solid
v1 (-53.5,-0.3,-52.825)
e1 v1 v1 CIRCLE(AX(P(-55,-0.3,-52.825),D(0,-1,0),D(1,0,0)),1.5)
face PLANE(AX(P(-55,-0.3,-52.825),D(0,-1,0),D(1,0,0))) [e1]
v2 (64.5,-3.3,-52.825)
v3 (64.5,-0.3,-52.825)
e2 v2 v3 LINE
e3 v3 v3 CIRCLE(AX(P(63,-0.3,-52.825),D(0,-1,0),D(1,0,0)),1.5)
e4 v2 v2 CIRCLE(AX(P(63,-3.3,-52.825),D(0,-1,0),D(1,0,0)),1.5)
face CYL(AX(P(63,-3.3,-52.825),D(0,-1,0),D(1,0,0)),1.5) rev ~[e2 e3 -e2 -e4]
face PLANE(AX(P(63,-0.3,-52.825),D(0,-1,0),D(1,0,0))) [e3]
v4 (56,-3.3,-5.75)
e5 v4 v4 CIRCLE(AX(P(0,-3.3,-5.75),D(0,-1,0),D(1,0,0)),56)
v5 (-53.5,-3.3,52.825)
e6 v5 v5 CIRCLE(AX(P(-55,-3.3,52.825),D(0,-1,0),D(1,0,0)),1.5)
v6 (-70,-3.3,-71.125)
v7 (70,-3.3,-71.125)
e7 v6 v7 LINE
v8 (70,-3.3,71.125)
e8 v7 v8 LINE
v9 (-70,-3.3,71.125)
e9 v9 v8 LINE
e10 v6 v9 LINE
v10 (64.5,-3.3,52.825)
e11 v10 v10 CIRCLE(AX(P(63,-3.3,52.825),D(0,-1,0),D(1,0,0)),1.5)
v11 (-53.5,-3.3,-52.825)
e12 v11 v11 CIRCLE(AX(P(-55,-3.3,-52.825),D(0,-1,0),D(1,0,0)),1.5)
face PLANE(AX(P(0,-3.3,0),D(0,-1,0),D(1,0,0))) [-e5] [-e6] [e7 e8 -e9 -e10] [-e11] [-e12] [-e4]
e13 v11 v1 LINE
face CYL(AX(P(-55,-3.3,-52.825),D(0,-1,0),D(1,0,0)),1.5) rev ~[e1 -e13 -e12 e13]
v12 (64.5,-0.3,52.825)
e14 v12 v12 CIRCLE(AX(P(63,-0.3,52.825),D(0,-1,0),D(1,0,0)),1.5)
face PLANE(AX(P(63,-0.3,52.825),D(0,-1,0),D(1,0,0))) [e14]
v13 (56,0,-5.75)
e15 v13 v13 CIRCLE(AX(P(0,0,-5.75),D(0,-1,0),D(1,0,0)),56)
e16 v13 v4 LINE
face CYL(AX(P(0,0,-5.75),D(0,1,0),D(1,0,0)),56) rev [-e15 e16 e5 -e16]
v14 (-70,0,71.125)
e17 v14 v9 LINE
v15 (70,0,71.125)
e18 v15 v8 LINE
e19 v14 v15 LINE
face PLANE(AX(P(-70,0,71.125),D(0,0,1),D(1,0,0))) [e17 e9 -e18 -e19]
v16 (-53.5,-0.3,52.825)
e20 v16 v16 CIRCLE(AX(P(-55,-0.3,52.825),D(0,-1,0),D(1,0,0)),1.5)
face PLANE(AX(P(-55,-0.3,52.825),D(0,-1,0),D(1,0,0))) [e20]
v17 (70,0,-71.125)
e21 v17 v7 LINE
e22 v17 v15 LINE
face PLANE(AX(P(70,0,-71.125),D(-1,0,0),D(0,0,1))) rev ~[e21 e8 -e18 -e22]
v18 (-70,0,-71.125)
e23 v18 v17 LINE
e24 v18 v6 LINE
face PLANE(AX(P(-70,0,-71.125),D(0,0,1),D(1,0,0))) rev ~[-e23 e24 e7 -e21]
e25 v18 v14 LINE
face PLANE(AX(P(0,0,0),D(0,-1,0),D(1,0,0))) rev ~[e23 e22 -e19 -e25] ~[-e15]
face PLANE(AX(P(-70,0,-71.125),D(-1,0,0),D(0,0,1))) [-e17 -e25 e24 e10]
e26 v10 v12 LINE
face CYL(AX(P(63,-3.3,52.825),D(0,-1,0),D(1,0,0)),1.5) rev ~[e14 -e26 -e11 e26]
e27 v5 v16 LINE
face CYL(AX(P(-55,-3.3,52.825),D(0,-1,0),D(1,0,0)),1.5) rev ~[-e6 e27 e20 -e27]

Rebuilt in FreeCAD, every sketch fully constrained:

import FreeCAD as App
import Part
import Sketcher

V = App.Vector
Q = App.Units.Quantity

doc = App.newDocument("Part")
body = doc.addObject("PartDesign::Body", "Body")

# Sketch on XZ plane
sketch1 = doc.addObject("Sketcher::SketchObject", "Sketch")
body.addObject(sketch1)
sketch1.AttachmentSupport = (doc.XZ_Plane, [""])
sketch1.MapMode = "FlatFace"
sketch1.addGeometry([
    Part.LineSegment(V(-70, 71, 0), V(-70, -71, 0)),  # 0
    Part.LineSegment(V(-70, -71, 0), V(70, -71, 0)),  # 1
    Part.LineSegment(V(70, -71, 0), V(70, 71, 0)),  # 2
    Part.LineSegment(V(70, 71, 0), V(-70, 71, 0)),  # 3
    Part.Circle(V(0, -6, 0), V(0, 0, 1), 56),  # 4
], False)
sketch1.addConstraint([
    Sketcher.Constraint("Coincident", 0, 2, 1, 1),
    Sketcher.Constraint("Coincident", 1, 2, 2, 1),
    Sketcher.Constraint("Coincident", 2, 2, 3, 1),
    Sketcher.Constraint("Coincident", 3, 2, 0, 1),
    Sketcher.Constraint("Vertical", 0),
    Sketcher.Constraint("Horizontal", 1),
    Sketcher.Constraint("Vertical", 2),
    Sketcher.Constraint("Horizontal", 3),
    Sketcher.Constraint("Symmetric", 0, 2, 2, 2, -1, 1),
    Sketcher.Constraint("PointOnObject", 4, 3, -2),
    Sketcher.Constraint("Diameter", 4, Q("112 mm")),
    Sketcher.Constraint("DistanceX", 1, 1, 1, 2, Q("140 mm")),
    Sketcher.Constraint("DistanceY", 0, 2, 0, 1, Q("142.25 mm")),
    Sketcher.Constraint("DistanceY", 4, 3, -1, 1, Q("5.75 mm")),
])
pad1 = doc.addObject("PartDesign::Pad", "Pad")
body.addObject(pad1)
pad1.Profile = sketch1
pad1.Length = 3.3

# Sketch on XZ plane
sketch2 = doc.addObject("Sketcher::SketchObject", "Sketch001")
body.addObject(sketch2)
sketch2.AttachmentSupport = (doc.XZ_Plane, [""])
sketch2.MapMode = "FlatFace"
sketch2.AttachmentOffset = App.Placement(V(0, 0, 3.3), App.Rotation())
sketch2.addGeometry([
    Part.Circle(V(63, 52.8, 0), V(0, 0, 1), 1.5),
    Part.Circle(V(-55, 52.8, 0), V(0, 0, 1), 1.5),
    Part.Circle(V(-55, -52.8, 0), V(0, 0, 1), 1.5),
    Part.Circle(V(63, -52.8, 0), V(0, 0, 1), 1.5),
], False)
sketch2.addConstraint([
    Sketcher.Constraint("Equal", 0, 1),
    Sketcher.Constraint("Equal", 1, 2),
    Sketcher.Constraint("Equal", 2, 3),
    Sketcher.Constraint("Symmetric", 1, 3, 2, 3, -1),
    Sketcher.Constraint("Symmetric", 0, 3, 3, 3, -1),
    Sketcher.Constraint("Horizontal", 0, 3, 1, 3),
    Sketcher.Constraint("Diameter", 0, Q("3 mm")),
    Sketcher.Constraint("DistanceX", -1, 1, 0, 3, Q("63 mm")),
    Sketcher.Constraint("DistanceX", 1, 3, -1, 1, Q("55 mm")),
    Sketcher.Constraint("DistanceY", 2, 3, 1, 3, Q("105.65 mm")),
])
pocket1 = doc.addObject("PartDesign::Pocket", "Pocket")
body.addObject(pocket1)
pocket1.Profile = sketch2
pocket1.Length = 3

doc.recompute()
